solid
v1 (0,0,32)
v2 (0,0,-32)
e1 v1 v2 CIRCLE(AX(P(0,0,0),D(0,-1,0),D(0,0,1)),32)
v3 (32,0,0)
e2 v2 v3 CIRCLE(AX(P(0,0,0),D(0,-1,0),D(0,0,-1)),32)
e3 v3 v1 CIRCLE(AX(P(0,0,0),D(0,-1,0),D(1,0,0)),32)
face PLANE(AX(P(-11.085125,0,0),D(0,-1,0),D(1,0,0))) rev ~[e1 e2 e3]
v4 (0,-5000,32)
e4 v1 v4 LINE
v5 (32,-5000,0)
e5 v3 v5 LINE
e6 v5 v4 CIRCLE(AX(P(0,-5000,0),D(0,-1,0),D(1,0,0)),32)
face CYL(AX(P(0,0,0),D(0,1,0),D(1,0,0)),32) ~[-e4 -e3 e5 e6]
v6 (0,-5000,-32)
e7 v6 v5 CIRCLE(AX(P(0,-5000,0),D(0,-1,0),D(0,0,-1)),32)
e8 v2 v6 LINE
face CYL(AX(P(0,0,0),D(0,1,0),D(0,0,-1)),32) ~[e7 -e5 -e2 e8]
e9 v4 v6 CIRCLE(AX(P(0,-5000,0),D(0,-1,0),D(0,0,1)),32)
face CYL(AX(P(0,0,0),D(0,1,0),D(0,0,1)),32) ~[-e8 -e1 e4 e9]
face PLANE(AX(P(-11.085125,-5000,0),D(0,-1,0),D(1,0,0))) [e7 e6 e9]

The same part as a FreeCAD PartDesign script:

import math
import FreeCAD as App
import Part
import Sketcher
from FreeCAD import Vector
Q = App.Units.Quantity

doc = App.newDocument("Part")
params = doc.addObject("Spreadsheet::Sheet", "Params")
for row, (alias, value) in enumerate([
    ("sketch1_radius", "32 mm"),
    ("pad1_length", "5000 mm"),
], start=1):
    params.set(f"A{row}", alias)
    params.set(f"B{row}", "=" + value)
    params.setAlias(f"B{row}", alias)

body = doc.addObject("PartDesign::Body", "Body")

# Sketch on XZ plane
sketch1 = body.newObject("Sketcher::SketchObject", "Sketch")
sketch1.AttachmentSupport = (doc.getObject("XZ_Plane"), [""])
sketch1.MapMode = "FlatFace"
sketch1.addGeometry([
    Part.ArcOfCircle(Part.Circle(Vector(0, 0, 0), Vector(0, 0, 1), 32), math.radians(90), math.radians(270)),
    Part.ArcOfCircle(Part.Circle(Vector(0, 0, 0), Vector(0, 0, 1), 32), math.radians(-90), math.radians(0)),
    Part.ArcOfCircle(Part.Circle(Vector(0, 0, 0), Vector(0, 0, 1), 32), math.radians(0), math.radians(90)),
], False)
sketch1.addConstraint([
    Sketcher.Constraint("Tangent", 0, 2, 1, 1),
    Sketcher.Constraint("Tangent", 1, 2, 2, 1),
    Sketcher.Constraint("Tangent", 2, 2, 0, 1),
    Sketcher.Constraint("Coincident", 0, 3, -1, 1),
    Sketcher.Constraint("PointOnObject", 0, 2, -2),
    Sketcher.Constraint("PointOnObject", 1, 2, -1),
    Sketcher.Constraint("PointOnObject", 2, 2, -2),
    Sketcher.Constraint("Radius", 0, Q("32 mm")),
])
sketch1.setExpression("Constraints[7]", "Params.sketch1_radius")
pad1 = body.newObject("PartDesign::Pad", "Pad")
pad1.Profile = sketch1
pad1.setExpression("Length", "Params.pad1_length")

doc.recompute()
